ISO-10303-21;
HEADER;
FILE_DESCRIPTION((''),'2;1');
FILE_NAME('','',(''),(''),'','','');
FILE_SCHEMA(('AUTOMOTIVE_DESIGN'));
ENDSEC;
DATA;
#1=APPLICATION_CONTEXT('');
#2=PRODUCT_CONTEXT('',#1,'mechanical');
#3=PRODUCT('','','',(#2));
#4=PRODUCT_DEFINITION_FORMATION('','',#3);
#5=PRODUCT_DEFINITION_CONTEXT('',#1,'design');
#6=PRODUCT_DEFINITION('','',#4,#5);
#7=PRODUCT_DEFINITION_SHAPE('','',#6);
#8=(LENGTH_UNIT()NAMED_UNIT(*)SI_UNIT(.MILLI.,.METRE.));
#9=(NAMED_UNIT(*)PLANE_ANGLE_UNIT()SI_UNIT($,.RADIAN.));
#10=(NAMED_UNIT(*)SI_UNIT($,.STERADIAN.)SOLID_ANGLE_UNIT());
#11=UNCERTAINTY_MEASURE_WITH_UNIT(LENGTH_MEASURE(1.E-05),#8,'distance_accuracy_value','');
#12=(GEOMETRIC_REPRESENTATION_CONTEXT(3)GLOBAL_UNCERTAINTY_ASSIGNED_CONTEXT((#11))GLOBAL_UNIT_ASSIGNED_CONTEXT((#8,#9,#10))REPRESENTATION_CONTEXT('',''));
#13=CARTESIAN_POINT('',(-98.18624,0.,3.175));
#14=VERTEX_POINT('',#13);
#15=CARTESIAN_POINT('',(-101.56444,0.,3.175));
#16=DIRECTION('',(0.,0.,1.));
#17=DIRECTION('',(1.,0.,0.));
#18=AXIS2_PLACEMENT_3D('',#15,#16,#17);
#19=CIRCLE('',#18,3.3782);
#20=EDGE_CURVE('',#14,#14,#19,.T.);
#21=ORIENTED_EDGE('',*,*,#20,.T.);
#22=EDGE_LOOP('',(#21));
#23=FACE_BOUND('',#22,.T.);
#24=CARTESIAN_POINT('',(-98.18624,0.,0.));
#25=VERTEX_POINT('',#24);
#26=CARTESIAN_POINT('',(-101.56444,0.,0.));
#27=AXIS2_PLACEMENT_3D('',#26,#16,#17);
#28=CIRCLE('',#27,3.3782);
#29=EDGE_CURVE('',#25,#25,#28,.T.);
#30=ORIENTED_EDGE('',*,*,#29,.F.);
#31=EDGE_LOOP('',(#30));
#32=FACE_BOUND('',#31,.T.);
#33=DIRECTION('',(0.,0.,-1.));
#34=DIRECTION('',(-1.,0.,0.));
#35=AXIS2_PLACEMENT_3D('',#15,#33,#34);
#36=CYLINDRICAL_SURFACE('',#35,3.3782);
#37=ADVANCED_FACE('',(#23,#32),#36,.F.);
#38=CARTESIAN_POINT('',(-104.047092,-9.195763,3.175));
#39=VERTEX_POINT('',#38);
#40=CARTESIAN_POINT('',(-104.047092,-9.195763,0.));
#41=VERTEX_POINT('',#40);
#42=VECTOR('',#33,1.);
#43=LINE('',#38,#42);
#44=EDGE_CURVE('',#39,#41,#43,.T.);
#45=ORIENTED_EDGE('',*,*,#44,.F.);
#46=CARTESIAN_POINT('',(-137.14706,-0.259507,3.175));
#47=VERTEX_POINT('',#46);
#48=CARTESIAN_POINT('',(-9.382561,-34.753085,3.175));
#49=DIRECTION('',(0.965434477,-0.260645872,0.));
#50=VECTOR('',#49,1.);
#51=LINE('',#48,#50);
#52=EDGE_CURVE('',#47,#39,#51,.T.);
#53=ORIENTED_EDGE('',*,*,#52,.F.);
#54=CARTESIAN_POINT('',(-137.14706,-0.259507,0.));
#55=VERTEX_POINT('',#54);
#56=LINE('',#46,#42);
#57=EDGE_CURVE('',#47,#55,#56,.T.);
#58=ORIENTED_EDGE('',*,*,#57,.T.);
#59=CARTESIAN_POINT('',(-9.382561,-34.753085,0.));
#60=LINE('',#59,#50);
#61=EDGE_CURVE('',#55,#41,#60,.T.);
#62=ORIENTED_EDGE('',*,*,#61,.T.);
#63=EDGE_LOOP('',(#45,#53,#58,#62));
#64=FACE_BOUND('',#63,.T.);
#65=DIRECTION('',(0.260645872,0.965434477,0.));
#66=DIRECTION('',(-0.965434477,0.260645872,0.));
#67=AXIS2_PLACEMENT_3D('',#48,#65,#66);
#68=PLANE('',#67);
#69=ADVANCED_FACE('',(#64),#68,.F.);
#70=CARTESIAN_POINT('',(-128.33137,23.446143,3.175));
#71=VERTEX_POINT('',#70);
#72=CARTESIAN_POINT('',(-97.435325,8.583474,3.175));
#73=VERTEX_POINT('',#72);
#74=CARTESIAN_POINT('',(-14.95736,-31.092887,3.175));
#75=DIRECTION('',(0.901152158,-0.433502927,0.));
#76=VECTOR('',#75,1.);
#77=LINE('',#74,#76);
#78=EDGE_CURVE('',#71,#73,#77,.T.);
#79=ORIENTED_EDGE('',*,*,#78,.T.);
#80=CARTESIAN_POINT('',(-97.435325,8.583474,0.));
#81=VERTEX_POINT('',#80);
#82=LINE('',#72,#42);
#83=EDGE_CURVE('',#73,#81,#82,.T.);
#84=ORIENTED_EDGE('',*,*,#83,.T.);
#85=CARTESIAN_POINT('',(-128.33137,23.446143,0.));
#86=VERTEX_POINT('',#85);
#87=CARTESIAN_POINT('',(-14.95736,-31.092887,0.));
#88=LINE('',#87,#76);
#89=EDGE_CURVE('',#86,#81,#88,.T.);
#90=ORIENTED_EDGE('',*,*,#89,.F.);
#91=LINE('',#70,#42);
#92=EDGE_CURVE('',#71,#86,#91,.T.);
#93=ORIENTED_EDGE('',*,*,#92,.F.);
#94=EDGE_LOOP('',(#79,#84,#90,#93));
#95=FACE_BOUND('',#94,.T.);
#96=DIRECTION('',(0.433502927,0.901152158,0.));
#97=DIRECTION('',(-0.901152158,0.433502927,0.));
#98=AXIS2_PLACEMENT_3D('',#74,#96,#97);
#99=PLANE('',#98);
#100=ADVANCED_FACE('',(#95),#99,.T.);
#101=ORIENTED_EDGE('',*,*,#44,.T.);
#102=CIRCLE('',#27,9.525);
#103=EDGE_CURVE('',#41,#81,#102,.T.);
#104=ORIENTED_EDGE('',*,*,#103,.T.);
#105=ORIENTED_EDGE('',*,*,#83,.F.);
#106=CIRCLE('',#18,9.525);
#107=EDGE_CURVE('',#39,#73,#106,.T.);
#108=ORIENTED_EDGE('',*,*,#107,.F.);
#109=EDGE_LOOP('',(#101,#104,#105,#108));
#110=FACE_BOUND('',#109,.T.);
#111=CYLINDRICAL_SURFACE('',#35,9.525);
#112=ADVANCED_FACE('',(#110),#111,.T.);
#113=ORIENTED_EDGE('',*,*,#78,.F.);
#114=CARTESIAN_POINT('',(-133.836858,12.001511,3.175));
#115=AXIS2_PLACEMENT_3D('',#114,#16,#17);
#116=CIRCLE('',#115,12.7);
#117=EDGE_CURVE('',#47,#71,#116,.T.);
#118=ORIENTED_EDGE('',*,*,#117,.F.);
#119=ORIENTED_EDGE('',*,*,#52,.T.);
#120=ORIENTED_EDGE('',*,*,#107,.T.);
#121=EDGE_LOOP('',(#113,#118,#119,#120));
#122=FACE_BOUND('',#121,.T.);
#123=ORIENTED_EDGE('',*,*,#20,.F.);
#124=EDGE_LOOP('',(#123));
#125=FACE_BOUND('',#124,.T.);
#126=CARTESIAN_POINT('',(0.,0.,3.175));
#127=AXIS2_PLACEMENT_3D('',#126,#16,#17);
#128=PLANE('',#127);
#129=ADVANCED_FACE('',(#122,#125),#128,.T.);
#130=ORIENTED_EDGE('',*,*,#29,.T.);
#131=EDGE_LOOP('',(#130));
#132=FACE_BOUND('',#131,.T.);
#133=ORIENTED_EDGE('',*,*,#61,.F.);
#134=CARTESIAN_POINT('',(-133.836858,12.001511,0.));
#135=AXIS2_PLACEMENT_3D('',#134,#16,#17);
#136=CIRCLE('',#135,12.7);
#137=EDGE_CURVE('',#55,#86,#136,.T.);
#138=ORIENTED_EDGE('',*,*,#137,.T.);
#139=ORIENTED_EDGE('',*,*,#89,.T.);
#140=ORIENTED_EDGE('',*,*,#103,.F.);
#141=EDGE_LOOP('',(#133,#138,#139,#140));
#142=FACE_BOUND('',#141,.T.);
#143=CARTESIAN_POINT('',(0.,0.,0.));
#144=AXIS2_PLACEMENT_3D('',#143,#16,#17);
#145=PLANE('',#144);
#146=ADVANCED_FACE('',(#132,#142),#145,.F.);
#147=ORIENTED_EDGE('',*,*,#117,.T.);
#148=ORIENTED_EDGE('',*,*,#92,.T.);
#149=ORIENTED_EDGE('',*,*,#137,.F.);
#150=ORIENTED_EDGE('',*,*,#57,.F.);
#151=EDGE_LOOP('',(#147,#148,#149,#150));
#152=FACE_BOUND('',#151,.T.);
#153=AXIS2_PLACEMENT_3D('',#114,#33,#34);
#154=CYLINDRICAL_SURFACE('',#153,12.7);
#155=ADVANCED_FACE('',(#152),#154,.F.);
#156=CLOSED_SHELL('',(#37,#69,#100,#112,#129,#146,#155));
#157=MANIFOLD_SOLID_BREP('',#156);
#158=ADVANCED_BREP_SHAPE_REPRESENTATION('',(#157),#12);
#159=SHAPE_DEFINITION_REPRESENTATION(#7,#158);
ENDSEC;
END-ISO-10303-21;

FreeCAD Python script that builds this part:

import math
import FreeCAD as App
import Part
import Sketcher

V = App.Vector
Q = App.Units.Quantity

doc = App.newDocument("Part")
body = doc.addObject("PartDesign::Body", "Body")

# Sketch on XY plane
sketch1 = body.newObject("Sketcher::SketchObject", "Sketch")
sketch1.AttachmentSupport = (doc.getObject("XY_Plane"), [""])
sketch1.MapMode = "FlatFace"
sketch1.addGeometry([
    Part.ArcOfCircle(Part.Circle(V(-101.6, 0, 0), V(0, 0, 1), 9.5), math.radians(-105), math.radians(64)),  # 0
    Part.LineSegment(V(-97.4, 8.6, 0), V(-128.3, 23.4, 0)),  # 1
    Part.ArcOfCircle(Part.Circle(V(-133.8, 12, 0), V(0, 0, 1), 12.7), math.radians(-105), math.radians(64)),  # 2
    Part.LineSegment(V(-137.1, -0.3, 0), V(-104, -9.2, 0)),  # 3
    Part.Circle(V(-101.6, 0, 0), V(0, 0, 1), 3.4),  # 4
], False)
sketch1.addConstraint([
    Sketcher.Constraint("Tangent", 0, 2, 1, 1),
    Sketcher.Constraint("Tangent", 1, 2, 2, 2),
    Sketcher.Constraint("Tangent", 2, 1, 3, 1),
    Sketcher.Constraint("Tangent", 3, 2, 0, 1),
    Sketcher.Constraint("Coincident", 4, 3, 0, 3),
    Sketcher.Constraint("PointOnObject", 0, 3, -1),
    Sketcher.Constraint("Radius", 2, Q("0.5 in")),
    Sketcher.Constraint("Diameter", 4, Q("0.266 in")),
    Sketcher.Constraint("Radius", 0, Q("0.375 in")),
    Sketcher.Constraint("DistanceX", 0, 3, -1, 1, Q("3.9986 in")),
    Sketcher.Constraint("Distance", 1, Q("34.285049 mm")),
    Sketcher.Constraint("DistanceY", -1, 1, 2, 3, Q("12.001511 mm")),
])
pad1 = body.newObject("PartDesign::Pad", "Pad")
pad1.Profile = sketch1
pad1.Length = Q("0.125 in")

doc.recompute()
